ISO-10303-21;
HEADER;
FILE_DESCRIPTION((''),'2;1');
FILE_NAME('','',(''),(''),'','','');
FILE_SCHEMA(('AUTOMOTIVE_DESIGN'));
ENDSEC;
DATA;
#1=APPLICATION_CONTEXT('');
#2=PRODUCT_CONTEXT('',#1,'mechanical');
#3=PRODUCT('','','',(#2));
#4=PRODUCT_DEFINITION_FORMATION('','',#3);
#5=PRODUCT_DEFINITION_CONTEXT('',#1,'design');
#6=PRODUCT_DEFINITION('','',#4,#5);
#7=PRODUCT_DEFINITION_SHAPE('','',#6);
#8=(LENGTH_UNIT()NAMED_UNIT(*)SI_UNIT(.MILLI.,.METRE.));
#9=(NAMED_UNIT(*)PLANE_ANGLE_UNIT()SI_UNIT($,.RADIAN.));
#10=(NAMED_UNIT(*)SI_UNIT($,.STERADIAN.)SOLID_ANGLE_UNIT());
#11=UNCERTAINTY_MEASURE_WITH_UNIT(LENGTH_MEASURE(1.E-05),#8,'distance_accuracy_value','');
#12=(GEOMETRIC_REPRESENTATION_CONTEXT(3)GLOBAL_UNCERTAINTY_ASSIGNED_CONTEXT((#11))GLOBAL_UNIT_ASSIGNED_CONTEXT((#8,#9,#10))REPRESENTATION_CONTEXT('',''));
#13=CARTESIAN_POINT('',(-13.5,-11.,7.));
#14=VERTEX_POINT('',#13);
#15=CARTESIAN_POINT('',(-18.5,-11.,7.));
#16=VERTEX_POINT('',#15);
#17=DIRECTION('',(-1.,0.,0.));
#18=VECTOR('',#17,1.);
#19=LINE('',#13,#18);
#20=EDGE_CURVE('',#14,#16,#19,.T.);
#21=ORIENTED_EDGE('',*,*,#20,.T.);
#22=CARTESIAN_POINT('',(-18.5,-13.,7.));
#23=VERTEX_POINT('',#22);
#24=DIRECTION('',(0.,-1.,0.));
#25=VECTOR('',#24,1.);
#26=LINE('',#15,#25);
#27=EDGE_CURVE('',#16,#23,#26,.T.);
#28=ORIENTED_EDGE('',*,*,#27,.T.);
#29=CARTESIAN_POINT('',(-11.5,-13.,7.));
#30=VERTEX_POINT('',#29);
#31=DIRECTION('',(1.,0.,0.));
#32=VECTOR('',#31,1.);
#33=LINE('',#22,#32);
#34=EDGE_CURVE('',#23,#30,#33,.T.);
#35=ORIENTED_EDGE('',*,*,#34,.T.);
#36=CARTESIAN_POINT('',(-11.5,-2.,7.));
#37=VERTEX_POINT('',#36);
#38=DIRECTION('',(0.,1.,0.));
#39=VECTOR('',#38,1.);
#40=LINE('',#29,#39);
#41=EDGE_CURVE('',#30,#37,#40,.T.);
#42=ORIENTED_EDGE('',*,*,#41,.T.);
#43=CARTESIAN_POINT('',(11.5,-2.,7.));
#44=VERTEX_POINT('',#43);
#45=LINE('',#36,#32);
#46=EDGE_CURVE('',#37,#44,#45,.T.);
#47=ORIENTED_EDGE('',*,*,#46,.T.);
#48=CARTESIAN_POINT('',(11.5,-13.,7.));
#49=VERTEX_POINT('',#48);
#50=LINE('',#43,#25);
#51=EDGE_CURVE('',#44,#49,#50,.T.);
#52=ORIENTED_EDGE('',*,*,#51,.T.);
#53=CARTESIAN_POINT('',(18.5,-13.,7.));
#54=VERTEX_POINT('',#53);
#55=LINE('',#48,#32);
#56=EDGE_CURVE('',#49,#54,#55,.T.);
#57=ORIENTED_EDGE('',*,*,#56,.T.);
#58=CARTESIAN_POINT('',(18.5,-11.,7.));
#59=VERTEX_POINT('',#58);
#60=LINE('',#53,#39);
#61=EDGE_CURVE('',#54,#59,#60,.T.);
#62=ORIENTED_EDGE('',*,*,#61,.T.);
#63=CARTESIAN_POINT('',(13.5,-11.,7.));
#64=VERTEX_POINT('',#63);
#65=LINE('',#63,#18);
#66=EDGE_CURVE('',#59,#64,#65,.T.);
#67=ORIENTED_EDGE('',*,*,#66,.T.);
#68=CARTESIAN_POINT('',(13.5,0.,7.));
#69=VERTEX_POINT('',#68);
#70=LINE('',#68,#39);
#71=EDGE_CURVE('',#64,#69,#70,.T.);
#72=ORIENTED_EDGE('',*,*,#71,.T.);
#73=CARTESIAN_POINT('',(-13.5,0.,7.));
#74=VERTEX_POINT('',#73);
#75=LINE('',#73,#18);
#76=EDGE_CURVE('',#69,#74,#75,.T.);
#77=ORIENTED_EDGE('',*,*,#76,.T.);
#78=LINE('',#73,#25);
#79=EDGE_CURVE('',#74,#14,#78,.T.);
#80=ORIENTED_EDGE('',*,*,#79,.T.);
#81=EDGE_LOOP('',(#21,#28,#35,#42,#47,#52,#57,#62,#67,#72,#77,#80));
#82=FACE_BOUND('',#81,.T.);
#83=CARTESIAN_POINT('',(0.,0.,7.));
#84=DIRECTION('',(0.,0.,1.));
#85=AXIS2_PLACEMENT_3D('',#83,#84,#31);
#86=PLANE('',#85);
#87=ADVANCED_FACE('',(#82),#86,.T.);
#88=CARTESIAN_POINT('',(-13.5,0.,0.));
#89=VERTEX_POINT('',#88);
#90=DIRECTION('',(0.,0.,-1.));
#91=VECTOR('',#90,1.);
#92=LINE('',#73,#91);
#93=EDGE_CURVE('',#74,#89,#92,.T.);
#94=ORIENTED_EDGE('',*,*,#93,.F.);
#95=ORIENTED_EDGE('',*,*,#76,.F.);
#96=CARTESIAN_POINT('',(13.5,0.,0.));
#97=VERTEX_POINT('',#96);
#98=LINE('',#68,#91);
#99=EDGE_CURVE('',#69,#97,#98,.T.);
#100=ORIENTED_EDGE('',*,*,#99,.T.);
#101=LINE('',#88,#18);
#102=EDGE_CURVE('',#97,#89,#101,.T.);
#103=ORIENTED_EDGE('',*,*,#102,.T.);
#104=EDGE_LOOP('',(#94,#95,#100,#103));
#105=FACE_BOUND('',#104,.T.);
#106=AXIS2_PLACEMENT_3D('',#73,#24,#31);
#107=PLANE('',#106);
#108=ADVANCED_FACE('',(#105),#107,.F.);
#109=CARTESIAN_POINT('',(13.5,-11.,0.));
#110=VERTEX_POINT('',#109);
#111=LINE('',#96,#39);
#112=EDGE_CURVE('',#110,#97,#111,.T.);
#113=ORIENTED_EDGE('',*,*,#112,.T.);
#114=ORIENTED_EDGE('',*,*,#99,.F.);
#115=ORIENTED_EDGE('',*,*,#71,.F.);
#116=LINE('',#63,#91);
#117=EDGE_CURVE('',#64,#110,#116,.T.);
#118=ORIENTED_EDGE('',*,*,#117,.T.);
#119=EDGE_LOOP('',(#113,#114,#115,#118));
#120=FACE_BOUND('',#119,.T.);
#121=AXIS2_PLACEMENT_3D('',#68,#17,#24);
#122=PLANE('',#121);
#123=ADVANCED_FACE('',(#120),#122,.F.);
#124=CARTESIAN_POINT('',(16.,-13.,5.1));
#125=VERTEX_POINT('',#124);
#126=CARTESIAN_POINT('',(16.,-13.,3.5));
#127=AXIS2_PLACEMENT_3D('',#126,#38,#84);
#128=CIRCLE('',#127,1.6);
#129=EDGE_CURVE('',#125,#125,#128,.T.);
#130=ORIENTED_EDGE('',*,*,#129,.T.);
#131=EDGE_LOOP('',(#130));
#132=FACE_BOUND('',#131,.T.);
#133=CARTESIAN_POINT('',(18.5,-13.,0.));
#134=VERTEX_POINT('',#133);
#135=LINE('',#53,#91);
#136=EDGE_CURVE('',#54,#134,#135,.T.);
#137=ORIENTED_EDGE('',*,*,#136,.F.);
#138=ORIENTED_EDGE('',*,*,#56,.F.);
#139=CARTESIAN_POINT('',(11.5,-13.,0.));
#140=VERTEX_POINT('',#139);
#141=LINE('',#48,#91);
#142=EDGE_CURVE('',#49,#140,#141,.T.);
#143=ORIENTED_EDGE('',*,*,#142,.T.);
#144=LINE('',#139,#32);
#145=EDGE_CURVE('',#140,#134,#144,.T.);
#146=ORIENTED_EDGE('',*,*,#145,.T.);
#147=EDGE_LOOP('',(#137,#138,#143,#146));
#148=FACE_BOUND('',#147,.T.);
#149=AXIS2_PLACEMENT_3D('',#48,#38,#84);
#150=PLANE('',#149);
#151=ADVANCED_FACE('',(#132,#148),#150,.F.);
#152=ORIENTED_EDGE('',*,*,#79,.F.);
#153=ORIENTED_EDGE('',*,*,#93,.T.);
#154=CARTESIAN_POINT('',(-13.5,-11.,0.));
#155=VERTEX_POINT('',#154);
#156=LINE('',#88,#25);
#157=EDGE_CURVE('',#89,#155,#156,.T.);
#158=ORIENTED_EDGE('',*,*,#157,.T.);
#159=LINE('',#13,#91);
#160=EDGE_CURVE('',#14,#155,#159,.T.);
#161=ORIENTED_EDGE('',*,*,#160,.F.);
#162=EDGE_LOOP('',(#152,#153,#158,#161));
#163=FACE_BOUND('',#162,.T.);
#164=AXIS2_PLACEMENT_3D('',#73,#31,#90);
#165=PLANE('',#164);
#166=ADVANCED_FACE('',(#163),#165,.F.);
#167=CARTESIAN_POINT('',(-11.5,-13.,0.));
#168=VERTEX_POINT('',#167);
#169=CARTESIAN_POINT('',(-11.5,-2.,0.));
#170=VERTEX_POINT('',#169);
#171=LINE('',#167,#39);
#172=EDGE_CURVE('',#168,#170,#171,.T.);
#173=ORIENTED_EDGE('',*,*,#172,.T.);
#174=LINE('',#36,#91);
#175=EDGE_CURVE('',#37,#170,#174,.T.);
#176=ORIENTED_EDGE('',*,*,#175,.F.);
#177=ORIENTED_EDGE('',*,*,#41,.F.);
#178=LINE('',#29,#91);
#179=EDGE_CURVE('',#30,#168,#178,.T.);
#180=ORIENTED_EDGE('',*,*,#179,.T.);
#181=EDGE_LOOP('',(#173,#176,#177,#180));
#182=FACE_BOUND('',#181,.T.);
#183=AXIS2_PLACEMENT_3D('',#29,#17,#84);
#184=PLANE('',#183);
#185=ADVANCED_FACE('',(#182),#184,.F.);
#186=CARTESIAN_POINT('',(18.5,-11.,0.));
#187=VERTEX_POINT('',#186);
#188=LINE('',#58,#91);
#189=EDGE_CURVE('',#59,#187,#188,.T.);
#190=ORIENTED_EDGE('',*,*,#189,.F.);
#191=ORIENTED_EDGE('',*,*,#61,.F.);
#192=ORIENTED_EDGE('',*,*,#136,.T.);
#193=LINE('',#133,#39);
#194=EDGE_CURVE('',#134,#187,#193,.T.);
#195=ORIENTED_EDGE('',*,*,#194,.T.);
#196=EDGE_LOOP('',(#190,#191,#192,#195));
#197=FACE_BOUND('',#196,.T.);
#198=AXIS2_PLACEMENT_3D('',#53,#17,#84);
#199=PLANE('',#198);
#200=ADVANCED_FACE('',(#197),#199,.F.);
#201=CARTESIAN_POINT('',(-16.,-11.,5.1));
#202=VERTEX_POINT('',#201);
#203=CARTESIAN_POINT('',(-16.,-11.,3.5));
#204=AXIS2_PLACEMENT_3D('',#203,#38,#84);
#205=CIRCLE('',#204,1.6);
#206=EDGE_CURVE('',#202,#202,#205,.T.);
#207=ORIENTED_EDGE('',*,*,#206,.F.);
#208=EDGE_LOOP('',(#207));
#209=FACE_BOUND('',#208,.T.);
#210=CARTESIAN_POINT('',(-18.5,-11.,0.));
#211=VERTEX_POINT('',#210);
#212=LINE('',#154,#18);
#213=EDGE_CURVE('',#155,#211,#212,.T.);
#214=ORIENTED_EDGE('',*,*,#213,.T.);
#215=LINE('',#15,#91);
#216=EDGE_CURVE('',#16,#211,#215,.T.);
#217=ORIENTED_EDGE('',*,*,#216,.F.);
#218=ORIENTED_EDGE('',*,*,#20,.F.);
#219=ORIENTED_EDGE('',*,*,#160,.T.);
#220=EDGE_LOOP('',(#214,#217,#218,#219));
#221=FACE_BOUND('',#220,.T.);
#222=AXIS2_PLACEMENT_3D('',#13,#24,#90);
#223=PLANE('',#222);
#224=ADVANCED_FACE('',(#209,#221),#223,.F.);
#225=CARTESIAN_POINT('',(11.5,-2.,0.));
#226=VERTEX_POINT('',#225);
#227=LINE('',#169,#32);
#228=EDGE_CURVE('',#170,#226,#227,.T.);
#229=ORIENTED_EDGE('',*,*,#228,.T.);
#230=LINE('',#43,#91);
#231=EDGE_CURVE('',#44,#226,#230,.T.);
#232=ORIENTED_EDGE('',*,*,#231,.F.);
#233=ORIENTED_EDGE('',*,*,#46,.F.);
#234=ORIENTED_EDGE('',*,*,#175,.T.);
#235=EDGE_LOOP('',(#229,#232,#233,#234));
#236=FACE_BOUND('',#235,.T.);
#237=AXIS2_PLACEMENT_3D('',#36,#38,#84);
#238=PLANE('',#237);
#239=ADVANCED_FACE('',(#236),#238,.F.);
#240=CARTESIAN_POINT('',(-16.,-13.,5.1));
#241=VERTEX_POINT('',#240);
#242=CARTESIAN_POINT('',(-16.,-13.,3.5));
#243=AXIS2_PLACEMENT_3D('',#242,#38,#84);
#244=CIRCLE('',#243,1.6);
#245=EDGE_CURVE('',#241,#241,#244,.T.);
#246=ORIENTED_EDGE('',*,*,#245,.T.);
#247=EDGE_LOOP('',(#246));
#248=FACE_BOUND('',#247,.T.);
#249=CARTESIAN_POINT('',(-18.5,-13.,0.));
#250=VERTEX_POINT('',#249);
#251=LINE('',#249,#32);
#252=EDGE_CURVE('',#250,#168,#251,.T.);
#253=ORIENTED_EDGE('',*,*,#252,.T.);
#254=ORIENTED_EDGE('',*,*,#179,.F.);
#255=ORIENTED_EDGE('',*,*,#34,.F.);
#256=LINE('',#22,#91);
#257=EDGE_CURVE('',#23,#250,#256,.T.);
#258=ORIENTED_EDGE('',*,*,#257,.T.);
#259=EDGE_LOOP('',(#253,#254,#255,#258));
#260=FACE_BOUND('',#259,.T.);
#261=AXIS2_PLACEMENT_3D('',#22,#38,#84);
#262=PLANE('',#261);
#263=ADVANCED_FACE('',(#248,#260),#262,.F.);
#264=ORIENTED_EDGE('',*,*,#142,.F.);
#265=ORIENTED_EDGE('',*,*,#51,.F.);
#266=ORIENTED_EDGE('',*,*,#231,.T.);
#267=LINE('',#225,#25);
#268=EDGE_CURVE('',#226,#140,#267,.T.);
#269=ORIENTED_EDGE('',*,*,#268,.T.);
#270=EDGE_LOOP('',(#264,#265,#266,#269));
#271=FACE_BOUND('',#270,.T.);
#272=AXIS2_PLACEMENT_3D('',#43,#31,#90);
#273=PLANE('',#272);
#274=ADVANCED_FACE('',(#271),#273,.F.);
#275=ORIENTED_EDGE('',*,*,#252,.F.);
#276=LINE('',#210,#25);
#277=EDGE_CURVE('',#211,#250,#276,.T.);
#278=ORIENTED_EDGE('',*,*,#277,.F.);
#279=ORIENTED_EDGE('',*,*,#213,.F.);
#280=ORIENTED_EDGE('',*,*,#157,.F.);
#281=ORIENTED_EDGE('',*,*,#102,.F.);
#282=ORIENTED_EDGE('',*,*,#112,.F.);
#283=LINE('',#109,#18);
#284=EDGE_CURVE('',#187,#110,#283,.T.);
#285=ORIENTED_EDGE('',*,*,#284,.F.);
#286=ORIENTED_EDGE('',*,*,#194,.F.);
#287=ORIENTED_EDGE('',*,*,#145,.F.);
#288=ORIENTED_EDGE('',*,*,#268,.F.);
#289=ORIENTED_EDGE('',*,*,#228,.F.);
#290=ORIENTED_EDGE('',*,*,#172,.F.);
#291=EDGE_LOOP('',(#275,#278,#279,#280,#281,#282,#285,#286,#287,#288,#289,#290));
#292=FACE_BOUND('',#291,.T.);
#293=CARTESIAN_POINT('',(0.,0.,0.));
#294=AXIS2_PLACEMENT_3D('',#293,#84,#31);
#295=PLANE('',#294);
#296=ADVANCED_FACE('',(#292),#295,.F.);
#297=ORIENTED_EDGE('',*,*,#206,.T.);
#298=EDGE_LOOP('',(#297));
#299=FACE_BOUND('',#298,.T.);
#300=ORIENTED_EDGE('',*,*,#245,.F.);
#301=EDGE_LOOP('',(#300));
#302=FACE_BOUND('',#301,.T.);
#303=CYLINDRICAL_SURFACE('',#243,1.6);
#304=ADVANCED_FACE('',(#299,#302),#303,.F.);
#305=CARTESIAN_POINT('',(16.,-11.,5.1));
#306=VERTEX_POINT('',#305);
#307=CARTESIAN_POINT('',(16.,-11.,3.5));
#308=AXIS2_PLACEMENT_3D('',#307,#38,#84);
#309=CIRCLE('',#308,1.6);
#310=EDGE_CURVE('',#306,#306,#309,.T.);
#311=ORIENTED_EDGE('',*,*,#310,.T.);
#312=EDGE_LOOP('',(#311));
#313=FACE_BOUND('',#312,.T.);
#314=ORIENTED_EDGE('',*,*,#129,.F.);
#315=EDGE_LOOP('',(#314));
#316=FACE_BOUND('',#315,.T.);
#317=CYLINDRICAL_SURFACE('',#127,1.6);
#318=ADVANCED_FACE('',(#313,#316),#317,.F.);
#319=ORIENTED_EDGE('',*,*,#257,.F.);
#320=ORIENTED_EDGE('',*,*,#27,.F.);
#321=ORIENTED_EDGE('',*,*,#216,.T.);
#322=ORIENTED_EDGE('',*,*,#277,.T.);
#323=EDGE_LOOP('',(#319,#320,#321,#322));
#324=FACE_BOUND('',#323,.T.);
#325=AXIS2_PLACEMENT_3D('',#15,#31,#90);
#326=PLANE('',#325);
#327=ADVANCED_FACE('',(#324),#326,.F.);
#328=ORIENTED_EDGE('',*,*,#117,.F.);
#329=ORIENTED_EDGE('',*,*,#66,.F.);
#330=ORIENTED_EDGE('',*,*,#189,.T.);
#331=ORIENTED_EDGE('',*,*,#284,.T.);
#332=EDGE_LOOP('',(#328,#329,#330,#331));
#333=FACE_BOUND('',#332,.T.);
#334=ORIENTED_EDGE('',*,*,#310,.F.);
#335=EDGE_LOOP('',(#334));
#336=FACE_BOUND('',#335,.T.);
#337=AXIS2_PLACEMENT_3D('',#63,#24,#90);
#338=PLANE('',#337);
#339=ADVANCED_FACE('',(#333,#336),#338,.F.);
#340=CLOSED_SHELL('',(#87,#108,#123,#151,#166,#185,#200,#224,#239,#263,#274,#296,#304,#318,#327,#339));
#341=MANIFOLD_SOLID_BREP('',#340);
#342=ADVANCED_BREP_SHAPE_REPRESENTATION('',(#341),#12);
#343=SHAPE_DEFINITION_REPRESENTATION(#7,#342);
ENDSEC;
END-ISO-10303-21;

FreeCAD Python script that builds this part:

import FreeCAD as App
import Part
import Sketcher

V = App.Vector

doc = App.newDocument("Part")
params = doc.addObject("Spreadsheet::Sheet", "Params")
for row, (alias, value) in enumerate([
    ("sketch1_width", "27 mm"),
    ("sketch1_width2", "5 mm"),
    ("sketch1_width3", "7 mm"),
    ("sketch1_height", "11 mm"),
    ("sketch1_height2", "2 mm"),
    ("pad1_length", "7 mm"),
    ("sketch2_diameter", "3.2 mm"),
    ("pocket1_length", "2 mm"),
], start=1):
    params.set(f"A{row}", alias)
    params.set(f"B{row}", "=" + value)
    params.setAlias(f"B{row}", alias)

body = doc.addObject("PartDesign::Body", "Body")

sketch1 = body.newObject("Sketcher::SketchObject", "Sketch")
sketch1.AttachmentSupport = (doc.getObject("XY_Plane"), [""])
sketch1.MapMode = "FlatFace"
sketch1.addGeometry(Part.LineSegment(V(13.5, 0, 0), V(-13.5, 0, 0)), False)
sketch1.addGeometry(Part.LineSegment(V(-13.5, 0, 0), V(-13.5, -11, 0)), False)
sketch1.addGeometry(Part.LineSegment(V(-13.5, -11, 0), V(-18.5, -11, 0)), False)
sketch1.addGeometry(Part.LineSegment(V(-18.5, -11, 0), V(-18.5, -13, 0)), False)
sketch1.addGeometry(Part.LineSegment(V(-18.5, -13, 0), V(-11.5, -13, 0)), False)
sketch1.addGeometry(Part.LineSegment(V(-11.5, -13, 0), V(-11.5, -2, 0)), False)
sketch1.addGeometry(Part.LineSegment(V(-11.5, -2, 0), V(11.5, -2, 0)), False)
sketch1.addGeometry(Part.LineSegment(V(11.5, -2, 0), V(11.5, -13, 0)), False)
sketch1.addGeometry(Part.LineSegment(V(11.5, -13, 0), V(18.5, -13, 0)), False)
sketch1.addGeometry(Part.LineSegment(V(18.5, -13, 0), V(18.5, -11, 0)), False)
sketch1.addGeometry(Part.LineSegment(V(18.5, -11, 0), V(13.5, -11, 0)), False)
sketch1.addGeometry(Part.LineSegment(V(13.5, -11, 0), V(13.5, 0, 0)), False)
sketch1.addConstraint(Sketcher.Constraint("Coincident", 0, 2, 1, 1))
sketch1.addConstraint(Sketcher.Constraint("Coincident", 1, 2, 2, 1))
sketch1.addConstraint(Sketcher.Constraint("Coincident", 2, 2, 3, 1))
sketch1.addConstraint(Sketcher.Constraint("Coincident", 3, 2, 4, 1))
sketch1.addConstraint(Sketcher.Constraint("Coincident", 4, 2, 5, 1))
sketch1.addConstraint(Sketcher.Constraint("Coincident", 5, 2, 6, 1))
sketch1.addConstraint(Sketcher.Constraint("Coincident", 6, 2, 7, 1))
sketch1.addConstraint(Sketcher.Constraint("Coincident", 7, 2, 8, 1))
sketch1.addConstraint(Sketcher.Constraint("Coincident", 8, 2, 9, 1))
sketch1.addConstraint(Sketcher.Constraint("Coincident", 9, 2, 10, 1))
sketch1.addConstraint(Sketcher.Constraint("Coincident", 10, 2, 11, 1))
sketch1.addConstraint(Sketcher.Constraint("Coincident", 11, 2, 0, 1))
sketch1.addConstraint(Sketcher.Constraint("Horizontal", 0))
sketch1.addConstraint(Sketcher.Constraint("Vertical", 1))
sketch1.addConstraint(Sketcher.Constraint("Horizontal", 2))
sketch1.addConstraint(Sketcher.Constraint("Vertical", 3))
sketch1.addConstraint(Sketcher.Constraint("Horizontal", 4))
sketch1.addConstraint(Sketcher.Constraint("Vertical", 5))
sketch1.addConstraint(Sketcher.Constraint("Horizontal", 6))
sketch1.addConstraint(Sketcher.Constraint("Vertical", 7))
sketch1.addConstraint(Sketcher.Constraint("Horizontal", 8))
sketch1.addConstraint(Sketcher.Constraint("Vertical", 9))
sketch1.addConstraint(Sketcher.Constraint("Horizontal", 10))
sketch1.addConstraint(Sketcher.Constraint("Vertical", 11))
sketch1.addConstraint(Sketcher.Constraint("Symmetric", 0, 2, 11, 2, -1, 1))
sketch1.addConstraint(Sketcher.Constraint("Symmetric", 4, 2, 7, 2, -2))
sketch1.addConstraint(Sketcher.Constraint("Symmetric", 2, 2, 9, 2, -2))
sketch1.addConstraint(Sketcher.Constraint("Equal", 1, 5))
sketch1.addConstraint(Sketcher.Constraint("DistanceX", 0, 2, 0, 1, 27.0))
sketch1.addConstraint(Sketcher.Constraint("DistanceX", 2, 2, 2, 1, 5.0))
sketch1.addConstraint(Sketcher.Constraint("DistanceX", 4, 1, 4, 2, 7.0))
sketch1.addConstraint(Sketcher.Constraint("DistanceY", 1, 2, 1, 1, 11.0))
sketch1.addConstraint(Sketcher.Constraint("DistanceY", 3, 2, 3, 1, 2.0))
sketch1.setExpression("Constraints[28]", "Params.sketch1_width")
sketch1.setExpression("Constraints[29]", "Params.sketch1_width2")
sketch1.setExpression("Constraints[30]", "Params.sketch1_width3")
sketch1.setExpression("Constraints[31]", "Params.sketch1_height")
sketch1.setExpression("Constraints[32]", "Params.sketch1_height2")
pad1 = body.newObject("PartDesign::Pad", "Pad")
pad1.Profile = sketch1
pad1.setExpression("Length", "Params.pad1_length")

sketch2 = body.newObject("Sketcher::SketchObject", "Sketch001")
sketch2.AttachmentSupport = (doc.getObject("XZ_Plane"), [""])
sketch2.MapMode = "FlatFace"
sketch2.AttachmentOffset = App.Placement(V(0, 0, 11), App.Rotation())
sketch2.addGeometry(Part.Circle(V(16, 3.5, 0), V(0, 0, 1), 1.6), False)
sketch2.addGeometry(Part.Circle(V(-16, 3.5, 0), V(0, 0, 1), 1.6), False)
sketch2.addConstraint(Sketcher.Constraint("Equal", 0, 1))
sketch2.addConstraint(Sketcher.Constraint("Symmetric", 0, 3, 1, 3, -2))
sketch2.addConstraint(Sketcher.Constraint("Diameter", 0, 3.2))
sketch2.addConstraint(Sketcher.Constraint("DistanceX", -1, 1, 0, 3, 16.0))
sketch2.addConstraint(Sketcher.Constraint("DistanceY", -1, 1, 0, 3, 3.5))
sketch2.setExpression("Constraints[2]", "Params.sketch2_diameter")
pocket1 = body.newObject("PartDesign::Pocket", "Pocket")
pocket1.Profile = sketch2
pocket1.setExpression("Length", "Params.pocket1_length")
pocket1.Reversed = True

doc.recompute()
